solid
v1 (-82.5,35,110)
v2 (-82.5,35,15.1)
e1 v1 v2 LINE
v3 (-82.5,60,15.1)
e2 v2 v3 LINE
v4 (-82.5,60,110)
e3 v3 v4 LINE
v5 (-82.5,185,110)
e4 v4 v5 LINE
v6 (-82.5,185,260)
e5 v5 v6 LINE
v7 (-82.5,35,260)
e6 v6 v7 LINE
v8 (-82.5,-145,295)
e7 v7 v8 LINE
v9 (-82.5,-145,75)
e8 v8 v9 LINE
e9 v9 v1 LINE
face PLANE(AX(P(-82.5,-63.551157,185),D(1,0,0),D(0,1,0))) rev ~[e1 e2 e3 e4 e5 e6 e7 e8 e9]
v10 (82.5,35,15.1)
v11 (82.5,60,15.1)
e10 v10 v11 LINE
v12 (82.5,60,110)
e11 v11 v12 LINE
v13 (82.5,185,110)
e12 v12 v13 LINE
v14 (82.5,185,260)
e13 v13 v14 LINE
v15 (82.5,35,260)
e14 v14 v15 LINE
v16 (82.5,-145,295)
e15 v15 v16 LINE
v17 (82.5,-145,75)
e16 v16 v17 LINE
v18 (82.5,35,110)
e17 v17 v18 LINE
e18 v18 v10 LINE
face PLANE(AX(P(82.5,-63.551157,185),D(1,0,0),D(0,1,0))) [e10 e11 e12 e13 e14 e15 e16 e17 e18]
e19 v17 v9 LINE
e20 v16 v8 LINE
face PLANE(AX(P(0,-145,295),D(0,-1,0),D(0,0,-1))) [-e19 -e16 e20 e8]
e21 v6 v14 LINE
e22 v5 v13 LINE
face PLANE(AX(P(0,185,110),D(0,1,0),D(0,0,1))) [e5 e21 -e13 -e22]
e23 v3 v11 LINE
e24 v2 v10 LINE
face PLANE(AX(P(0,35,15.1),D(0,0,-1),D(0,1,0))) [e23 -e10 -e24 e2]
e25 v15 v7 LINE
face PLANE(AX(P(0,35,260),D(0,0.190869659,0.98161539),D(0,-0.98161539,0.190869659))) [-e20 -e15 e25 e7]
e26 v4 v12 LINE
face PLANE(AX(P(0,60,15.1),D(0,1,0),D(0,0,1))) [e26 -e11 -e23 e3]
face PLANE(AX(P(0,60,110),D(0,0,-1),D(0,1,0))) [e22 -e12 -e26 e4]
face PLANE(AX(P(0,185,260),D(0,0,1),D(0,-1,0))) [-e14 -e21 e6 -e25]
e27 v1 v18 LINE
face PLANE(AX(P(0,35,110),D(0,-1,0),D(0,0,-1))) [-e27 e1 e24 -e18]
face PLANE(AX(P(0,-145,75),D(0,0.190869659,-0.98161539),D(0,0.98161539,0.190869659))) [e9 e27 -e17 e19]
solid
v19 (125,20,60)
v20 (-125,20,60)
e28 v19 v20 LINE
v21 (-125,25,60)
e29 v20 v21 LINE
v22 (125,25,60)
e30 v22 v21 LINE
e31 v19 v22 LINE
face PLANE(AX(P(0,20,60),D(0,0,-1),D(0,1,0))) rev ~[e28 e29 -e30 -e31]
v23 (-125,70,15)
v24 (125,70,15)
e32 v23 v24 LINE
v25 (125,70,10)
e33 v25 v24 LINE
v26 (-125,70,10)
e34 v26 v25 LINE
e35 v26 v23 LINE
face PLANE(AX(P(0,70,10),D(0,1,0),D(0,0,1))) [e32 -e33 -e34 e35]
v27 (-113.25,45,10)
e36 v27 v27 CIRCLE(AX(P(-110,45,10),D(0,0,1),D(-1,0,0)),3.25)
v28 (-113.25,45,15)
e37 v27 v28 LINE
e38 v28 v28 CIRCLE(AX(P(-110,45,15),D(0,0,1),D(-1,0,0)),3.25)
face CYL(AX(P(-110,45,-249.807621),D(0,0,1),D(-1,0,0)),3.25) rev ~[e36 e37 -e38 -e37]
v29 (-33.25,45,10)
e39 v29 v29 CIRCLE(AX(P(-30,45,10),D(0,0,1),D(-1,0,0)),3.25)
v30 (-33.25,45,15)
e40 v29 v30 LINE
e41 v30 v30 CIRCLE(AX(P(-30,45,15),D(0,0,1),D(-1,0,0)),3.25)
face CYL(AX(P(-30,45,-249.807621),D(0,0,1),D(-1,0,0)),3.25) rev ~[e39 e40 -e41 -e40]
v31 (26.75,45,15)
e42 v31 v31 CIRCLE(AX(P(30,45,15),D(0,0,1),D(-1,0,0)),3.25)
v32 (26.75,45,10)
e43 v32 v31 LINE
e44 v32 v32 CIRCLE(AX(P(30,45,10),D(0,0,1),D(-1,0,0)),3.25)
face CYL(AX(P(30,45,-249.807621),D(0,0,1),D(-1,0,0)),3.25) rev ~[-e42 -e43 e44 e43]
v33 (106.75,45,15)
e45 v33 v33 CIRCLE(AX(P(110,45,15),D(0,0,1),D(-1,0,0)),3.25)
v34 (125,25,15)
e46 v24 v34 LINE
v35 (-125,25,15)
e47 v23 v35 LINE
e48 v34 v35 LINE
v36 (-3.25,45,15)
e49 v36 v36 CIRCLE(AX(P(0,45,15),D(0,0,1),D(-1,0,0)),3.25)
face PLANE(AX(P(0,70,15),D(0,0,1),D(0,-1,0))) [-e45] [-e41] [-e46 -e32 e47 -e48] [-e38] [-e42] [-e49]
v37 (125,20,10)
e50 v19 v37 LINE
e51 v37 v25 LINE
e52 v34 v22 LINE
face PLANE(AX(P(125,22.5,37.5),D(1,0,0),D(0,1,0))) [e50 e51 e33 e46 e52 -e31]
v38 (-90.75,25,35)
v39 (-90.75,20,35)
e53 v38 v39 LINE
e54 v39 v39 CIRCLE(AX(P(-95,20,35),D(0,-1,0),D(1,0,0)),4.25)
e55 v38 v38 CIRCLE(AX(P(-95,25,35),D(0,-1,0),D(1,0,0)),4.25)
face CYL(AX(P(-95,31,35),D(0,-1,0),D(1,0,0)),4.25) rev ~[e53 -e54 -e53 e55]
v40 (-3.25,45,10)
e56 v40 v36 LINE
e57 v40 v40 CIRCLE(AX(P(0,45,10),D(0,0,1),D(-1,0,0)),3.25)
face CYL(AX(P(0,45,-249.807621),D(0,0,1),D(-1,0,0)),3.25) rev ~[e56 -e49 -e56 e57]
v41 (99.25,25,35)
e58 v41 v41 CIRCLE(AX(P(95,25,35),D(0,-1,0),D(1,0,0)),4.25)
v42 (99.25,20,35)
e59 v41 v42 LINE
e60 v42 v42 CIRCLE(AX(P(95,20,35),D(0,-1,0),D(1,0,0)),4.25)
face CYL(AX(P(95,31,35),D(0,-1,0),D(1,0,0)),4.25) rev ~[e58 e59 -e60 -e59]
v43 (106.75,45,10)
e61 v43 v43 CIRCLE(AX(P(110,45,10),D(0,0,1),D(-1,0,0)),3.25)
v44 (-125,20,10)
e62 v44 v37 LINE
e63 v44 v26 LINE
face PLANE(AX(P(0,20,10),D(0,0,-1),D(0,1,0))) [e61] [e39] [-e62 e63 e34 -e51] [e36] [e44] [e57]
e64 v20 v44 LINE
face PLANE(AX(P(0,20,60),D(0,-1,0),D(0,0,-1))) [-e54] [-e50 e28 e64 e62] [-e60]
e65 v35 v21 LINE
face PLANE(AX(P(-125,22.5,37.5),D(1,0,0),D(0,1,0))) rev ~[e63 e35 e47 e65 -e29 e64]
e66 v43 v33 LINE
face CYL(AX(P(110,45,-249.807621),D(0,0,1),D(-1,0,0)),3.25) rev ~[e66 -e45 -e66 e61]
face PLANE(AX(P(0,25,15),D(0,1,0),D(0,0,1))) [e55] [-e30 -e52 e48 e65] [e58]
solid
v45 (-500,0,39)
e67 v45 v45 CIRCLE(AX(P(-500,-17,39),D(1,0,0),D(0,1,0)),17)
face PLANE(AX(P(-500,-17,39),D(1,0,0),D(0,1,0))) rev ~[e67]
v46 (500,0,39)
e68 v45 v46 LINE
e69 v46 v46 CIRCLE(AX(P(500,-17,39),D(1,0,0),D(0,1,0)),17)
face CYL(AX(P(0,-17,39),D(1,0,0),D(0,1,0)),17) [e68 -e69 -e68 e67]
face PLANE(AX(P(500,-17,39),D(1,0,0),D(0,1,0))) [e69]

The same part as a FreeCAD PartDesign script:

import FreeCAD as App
import Part
import Sketcher
Q = App.Units.Quantity


def add_polygon(sketch, points):
    """Adds a closed chain of lines whose ends are joined by coincident constraints."""
    first, n = sketch.GeometryCount, len(points)
    for a, b in zip(points, points[1:] + points[:1]):
        sketch.addGeometry(Part.LineSegment(App.Vector(*a, 0), App.Vector(*b, 0)), False)
    for i in range(n):
        sketch.addConstraint(Sketcher.Constraint("Coincident", first + i, 2, first + (i + 1) % n, 1))

doc = App.newDocument("Part")
params = doc.addObject("Spreadsheet::Sheet", "Params")
for row, (alias, value) in enumerate([
    ("sketch1_diameter", "34 mm"),
    ("pad1_length", "1000 mm"),
    ("sketch2_width", "50 mm"),
    ("sketch2_width2", "45 mm"),
    ("pad2_length", "250 mm"),
    ("sketch3_diameter", "6.5 mm"),
    ("hole_diameter", "6.5 mm"),
    ("sketch4_diameter", "8.5 mm"),
    ("hole2_diameter", "8.5 mm"),
    ("hole2_depth", "6 mm"),
    ("sketch5_width", "25 mm"),
    ("sketch5_width2", "125 mm"),
    ("sketch5_height", "220 mm"),
    ("sketch5_height2", "94.9 mm"),
    ("pad3_length", "165 mm"),
], start=1):
    params.set(f"A{row}", alias)
    params.set(f"B{row}", "=" + value)
    params.setAlias(f"B{row}", alias)

body = doc.addObject("PartDesign::Body", "Body")

# Sketch on YZ plane
sketch1 = body.newObject("Sketcher::SketchObject", "Sketch")
sketch1.AttachmentSupport = (doc.getObject("YZ_Plane"), [""])
sketch1.MapMode = "FlatFace"
sketch1.addGeometry(Part.Circle(App.Vector(-17, 39, 0), App.Vector(0, 0, 1), 17), False)
sketch1.addConstraint([
    Sketcher.Constraint("Diameter", 0, Q("34 mm")),
    Sketcher.Constraint("DistanceX", 0, 3, -1, 1, Q("17 mm")),
    Sketcher.Constraint("DistanceY", -1, 1, 0, 3, Q("39 mm")),
])
sketch1.setExpression("Constraints[0]", "Params.sketch1_diameter")
pad1 = body.newObject("PartDesign::Pad", "Pad")
pad1.Profile = sketch1
pad1.setExpression("Length", "Params.pad1_length")
pad1.Midplane = True
body2 = doc.addObject("PartDesign::Body", "Body001")

# Sketch on YZ plane
sketch2 = body2.newObject("Sketcher::SketchObject", "Sketch001")
sketch2.AttachmentSupport = (doc.getObject("YZ_Plane001"), [""])
sketch2.MapMode = "FlatFace"
add_polygon(sketch2, [(20, 60), (20, 10), (70, 10), (70, 15), (25, 15), (25, 60)])  # lines 0-5
sketch2.addConstraint([
    Sketcher.Constraint("Vertical", 0),
    Sketcher.Constraint("Horizontal", 1),
    Sketcher.Constraint("Vertical", 2),
    Sketcher.Constraint("Horizontal", 3),
    Sketcher.Constraint("Vertical", 4),
    Sketcher.Constraint("Horizontal", 5),
    Sketcher.Constraint("Equal", 1, 0),
    Sketcher.Constraint("Equal", 5, 2),
    Sketcher.Constraint("DistanceX", 1, 1, 1, 2, Q("50 mm")),
    Sketcher.Constraint("DistanceX", 3, 2, 3, 1, Q("45 mm")),
    Sketcher.Constraint("DistanceX", -1, 1, 0, 2, Q("20 mm")),
    Sketcher.Constraint("DistanceY", -1, 1, 0, 2, Q("10 mm")),
])
sketch2.setExpression("Constraints[14]", "Params.sketch2_width")
sketch2.setExpression("Constraints[15]", "Params.sketch2_width2")
pad2 = body2.newObject("PartDesign::Pad", "Pad001")
pad2.Profile = sketch2
pad2.setExpression("Length", "Params.pad2_length")
pad2.Midplane = True

# Sketch on XY plane
sketch3 = body2.newObject("Sketcher::SketchObject", "Sketch002")
sketch3.AttachmentSupport = (doc.getObject("XY_Plane001"), [""])
sketch3.MapMode = "FlatFace"
sketch3.AttachmentOffset = App.Placement(App.Vector(0, 0, 10), App.Rotation())
sketch3.addGeometry([
    Part.Circle(App.Vector(110, 45, 0), App.Vector(0, 0, 1), 3.2),  # 0
    Part.Circle(App.Vector(0, 45, 0), App.Vector(0, 0, 1), 3.2),  # 1
    Part.Circle(App.Vector(-110, 45, 0), App.Vector(0, 0, 1), 3.2),  # 2
    Part.Circle(App.Vector(30, 45, 0), App.Vector(0, 0, 1), 3.2),  # 3
    Part.Circle(App.Vector(-30, 45, 0), App.Vector(0, 0, 1), 3.2),  # 4
], False)
sketch3.addConstraint([
    Sketcher.Constraint("Equal", 0, 1),
    Sketcher.Constraint("Equal", 1, 2),
    Sketcher.Constraint("Equal", 2, 3),
    Sketcher.Constraint("Equal", 3, 4),
    Sketcher.Constraint("Symmetric", 0, 3, 2, 3, -2),
    Sketcher.Constraint("Symmetric", 3, 3, 4, 3, -2),
    Sketcher.Constraint("PointOnObject", 1, 3, -2),
    Sketcher.Constraint("Horizontal", 0, 3, 1, 3),
    Sketcher.Constraint("Horizontal", 2, 3, 3, 3),
    Sketcher.Constraint("Diameter", 0, Q("6.5 mm")),
    Sketcher.Constraint("DistanceX", -1, 1, 0, 3, Q("110 mm")),
    Sketcher.Constraint("DistanceY", -1, 1, 0, 3, Q("45 mm")),
    Sketcher.Constraint("DistanceX", -1, 1, 3, 3, Q("30 mm")),
])
sketch3.setExpression("Constraints[9]", "Params.sketch3_diameter")
doc.recompute()
hole = body2.newObject("PartDesign::Hole", "Hole")
hole.Profile = sketch3
hole.ThreadType = "None"
hole.setExpression("Diameter", "Params.hole_diameter")
hole.DepthType = "ThroughAll"
hole.Reversed = True

# Sketch on XZ plane
sketch4 = body2.newObject("Sketcher::SketchObject", "Sketch003")
sketch4.AttachmentSupport = (doc.getObject("XZ_Plane001"), [""])
sketch4.MapMode = "FlatFace"
sketch4.AttachmentOffset = App.Placement(App.Vector(0, 0, -25), App.Rotation())
sketch4.addGeometry([
    Part.Circle(App.Vector(95, 35, 0), App.Vector(0, 0, 1), 4.2),
    Part.Circle(App.Vector(-95, 35, 0), App.Vector(0, 0, 1), 4.2),
], False)
sketch4.addConstraint([
    Sketcher.Constraint("Equal", 0, 1),
    Sketcher.Constraint("Symmetric", 0, 3, 1, 3, -2),
    Sketcher.Constraint("Diameter", 0, Q("8.5 mm")),
    Sketcher.Constraint("DistanceX", -1, 1, 0, 3, Q("95 mm")),
    Sketcher.Constraint("DistanceY", -1, 1, 0, 3, Q("35 mm")),
])
sketch4.setExpression("Constraints[2]", "Params.sketch4_diameter")
doc.recompute()
hole2 = body2.newObject("PartDesign::Hole", "Hole001")
hole2.Profile = sketch4
hole2.ThreadType = "None"
hole2.setExpression("Diameter", "Params.hole2_diameter")
hole2.DepthType = "Dimension"
hole2.setExpression("Depth", "Params.hole2_depth")
hole2.DrillPoint = "Angled"
hole2.DrillPointAngle = 118
hole2.Reversed = True
body3 = doc.addObject("PartDesign::Body", "Body002")

# Sketch on YZ plane
sketch5 = body3.newObject("Sketcher::SketchObject", "Sketch004")
sketch5.AttachmentSupport = (doc.getObject("YZ_Plane002"), [""])
sketch5.MapMode = "FlatFace"
add_polygon(sketch5, [(-145, 75), (35, 110), (35, 15), (60, 15), (60, 110), (185, 110), (185, 260), (35, 260), (-145, 295)])  # lines 0-8
sketch5.addConstraint([
    Sketcher.Constraint("Vertical", 1),
    Sketcher.Constraint("Horizontal", 2),
    Sketcher.Constraint("Vertical", 3),
    Sketcher.Constraint("Horizontal", 4),
    Sketcher.Constraint("Vertical", 5),
    Sketcher.Constraint("Horizontal", 6),
    Sketcher.Constraint("Vertical", 8),
    Sketcher.Constraint("Horizontal", 0, 2, 3, 2),
    Sketcher.Constraint("Vertical", 1, 2, 6, 2),
    Sketcher.Constraint("Equal", 6, 5),
    Sketcher.Constraint("Equal", 0, 7),
    Sketcher.Constraint("DistanceX", 2, 1, 2, 2, Q("25 mm")),
    Sketcher.Constraint("DistanceX", 4, 1, 4, 2, Q("125 mm")),
    Sketcher.Constraint("DistanceY", 8, 2, 8, 1, Q("220 mm")),
    Sketcher.Constraint("DistanceY", 1, 2, 1, 1, Q("94.9 mm")),
    Sketcher.Constraint("DistanceX", -1, 1, 0, 2, Q("35 mm")),
    Sketcher.Constraint("DistanceY", -1, 1, 0, 2, Q("110 mm")),
    Sketcher.Constraint("DistanceX", 7, 2, -1, 1, Q("145 mm")),
])
sketch5.setExpression("Constraints[20]", "Params.sketch5_width")
sketch5.setExpression("Constraints[21]", "Params.sketch5_width2")
sketch5.setExpression("Constraints[22]", "Params.sketch5_height")
sketch5.setExpression("Constraints[23]", "Params.sketch5_height2")
pad3 = body3.newObject("PartDesign::Pad", "Pad002")
pad3.Profile = sketch5
pad3.setExpression("Length", "Params.pad3_length")
pad3.Midplane = True

doc.recompute()
